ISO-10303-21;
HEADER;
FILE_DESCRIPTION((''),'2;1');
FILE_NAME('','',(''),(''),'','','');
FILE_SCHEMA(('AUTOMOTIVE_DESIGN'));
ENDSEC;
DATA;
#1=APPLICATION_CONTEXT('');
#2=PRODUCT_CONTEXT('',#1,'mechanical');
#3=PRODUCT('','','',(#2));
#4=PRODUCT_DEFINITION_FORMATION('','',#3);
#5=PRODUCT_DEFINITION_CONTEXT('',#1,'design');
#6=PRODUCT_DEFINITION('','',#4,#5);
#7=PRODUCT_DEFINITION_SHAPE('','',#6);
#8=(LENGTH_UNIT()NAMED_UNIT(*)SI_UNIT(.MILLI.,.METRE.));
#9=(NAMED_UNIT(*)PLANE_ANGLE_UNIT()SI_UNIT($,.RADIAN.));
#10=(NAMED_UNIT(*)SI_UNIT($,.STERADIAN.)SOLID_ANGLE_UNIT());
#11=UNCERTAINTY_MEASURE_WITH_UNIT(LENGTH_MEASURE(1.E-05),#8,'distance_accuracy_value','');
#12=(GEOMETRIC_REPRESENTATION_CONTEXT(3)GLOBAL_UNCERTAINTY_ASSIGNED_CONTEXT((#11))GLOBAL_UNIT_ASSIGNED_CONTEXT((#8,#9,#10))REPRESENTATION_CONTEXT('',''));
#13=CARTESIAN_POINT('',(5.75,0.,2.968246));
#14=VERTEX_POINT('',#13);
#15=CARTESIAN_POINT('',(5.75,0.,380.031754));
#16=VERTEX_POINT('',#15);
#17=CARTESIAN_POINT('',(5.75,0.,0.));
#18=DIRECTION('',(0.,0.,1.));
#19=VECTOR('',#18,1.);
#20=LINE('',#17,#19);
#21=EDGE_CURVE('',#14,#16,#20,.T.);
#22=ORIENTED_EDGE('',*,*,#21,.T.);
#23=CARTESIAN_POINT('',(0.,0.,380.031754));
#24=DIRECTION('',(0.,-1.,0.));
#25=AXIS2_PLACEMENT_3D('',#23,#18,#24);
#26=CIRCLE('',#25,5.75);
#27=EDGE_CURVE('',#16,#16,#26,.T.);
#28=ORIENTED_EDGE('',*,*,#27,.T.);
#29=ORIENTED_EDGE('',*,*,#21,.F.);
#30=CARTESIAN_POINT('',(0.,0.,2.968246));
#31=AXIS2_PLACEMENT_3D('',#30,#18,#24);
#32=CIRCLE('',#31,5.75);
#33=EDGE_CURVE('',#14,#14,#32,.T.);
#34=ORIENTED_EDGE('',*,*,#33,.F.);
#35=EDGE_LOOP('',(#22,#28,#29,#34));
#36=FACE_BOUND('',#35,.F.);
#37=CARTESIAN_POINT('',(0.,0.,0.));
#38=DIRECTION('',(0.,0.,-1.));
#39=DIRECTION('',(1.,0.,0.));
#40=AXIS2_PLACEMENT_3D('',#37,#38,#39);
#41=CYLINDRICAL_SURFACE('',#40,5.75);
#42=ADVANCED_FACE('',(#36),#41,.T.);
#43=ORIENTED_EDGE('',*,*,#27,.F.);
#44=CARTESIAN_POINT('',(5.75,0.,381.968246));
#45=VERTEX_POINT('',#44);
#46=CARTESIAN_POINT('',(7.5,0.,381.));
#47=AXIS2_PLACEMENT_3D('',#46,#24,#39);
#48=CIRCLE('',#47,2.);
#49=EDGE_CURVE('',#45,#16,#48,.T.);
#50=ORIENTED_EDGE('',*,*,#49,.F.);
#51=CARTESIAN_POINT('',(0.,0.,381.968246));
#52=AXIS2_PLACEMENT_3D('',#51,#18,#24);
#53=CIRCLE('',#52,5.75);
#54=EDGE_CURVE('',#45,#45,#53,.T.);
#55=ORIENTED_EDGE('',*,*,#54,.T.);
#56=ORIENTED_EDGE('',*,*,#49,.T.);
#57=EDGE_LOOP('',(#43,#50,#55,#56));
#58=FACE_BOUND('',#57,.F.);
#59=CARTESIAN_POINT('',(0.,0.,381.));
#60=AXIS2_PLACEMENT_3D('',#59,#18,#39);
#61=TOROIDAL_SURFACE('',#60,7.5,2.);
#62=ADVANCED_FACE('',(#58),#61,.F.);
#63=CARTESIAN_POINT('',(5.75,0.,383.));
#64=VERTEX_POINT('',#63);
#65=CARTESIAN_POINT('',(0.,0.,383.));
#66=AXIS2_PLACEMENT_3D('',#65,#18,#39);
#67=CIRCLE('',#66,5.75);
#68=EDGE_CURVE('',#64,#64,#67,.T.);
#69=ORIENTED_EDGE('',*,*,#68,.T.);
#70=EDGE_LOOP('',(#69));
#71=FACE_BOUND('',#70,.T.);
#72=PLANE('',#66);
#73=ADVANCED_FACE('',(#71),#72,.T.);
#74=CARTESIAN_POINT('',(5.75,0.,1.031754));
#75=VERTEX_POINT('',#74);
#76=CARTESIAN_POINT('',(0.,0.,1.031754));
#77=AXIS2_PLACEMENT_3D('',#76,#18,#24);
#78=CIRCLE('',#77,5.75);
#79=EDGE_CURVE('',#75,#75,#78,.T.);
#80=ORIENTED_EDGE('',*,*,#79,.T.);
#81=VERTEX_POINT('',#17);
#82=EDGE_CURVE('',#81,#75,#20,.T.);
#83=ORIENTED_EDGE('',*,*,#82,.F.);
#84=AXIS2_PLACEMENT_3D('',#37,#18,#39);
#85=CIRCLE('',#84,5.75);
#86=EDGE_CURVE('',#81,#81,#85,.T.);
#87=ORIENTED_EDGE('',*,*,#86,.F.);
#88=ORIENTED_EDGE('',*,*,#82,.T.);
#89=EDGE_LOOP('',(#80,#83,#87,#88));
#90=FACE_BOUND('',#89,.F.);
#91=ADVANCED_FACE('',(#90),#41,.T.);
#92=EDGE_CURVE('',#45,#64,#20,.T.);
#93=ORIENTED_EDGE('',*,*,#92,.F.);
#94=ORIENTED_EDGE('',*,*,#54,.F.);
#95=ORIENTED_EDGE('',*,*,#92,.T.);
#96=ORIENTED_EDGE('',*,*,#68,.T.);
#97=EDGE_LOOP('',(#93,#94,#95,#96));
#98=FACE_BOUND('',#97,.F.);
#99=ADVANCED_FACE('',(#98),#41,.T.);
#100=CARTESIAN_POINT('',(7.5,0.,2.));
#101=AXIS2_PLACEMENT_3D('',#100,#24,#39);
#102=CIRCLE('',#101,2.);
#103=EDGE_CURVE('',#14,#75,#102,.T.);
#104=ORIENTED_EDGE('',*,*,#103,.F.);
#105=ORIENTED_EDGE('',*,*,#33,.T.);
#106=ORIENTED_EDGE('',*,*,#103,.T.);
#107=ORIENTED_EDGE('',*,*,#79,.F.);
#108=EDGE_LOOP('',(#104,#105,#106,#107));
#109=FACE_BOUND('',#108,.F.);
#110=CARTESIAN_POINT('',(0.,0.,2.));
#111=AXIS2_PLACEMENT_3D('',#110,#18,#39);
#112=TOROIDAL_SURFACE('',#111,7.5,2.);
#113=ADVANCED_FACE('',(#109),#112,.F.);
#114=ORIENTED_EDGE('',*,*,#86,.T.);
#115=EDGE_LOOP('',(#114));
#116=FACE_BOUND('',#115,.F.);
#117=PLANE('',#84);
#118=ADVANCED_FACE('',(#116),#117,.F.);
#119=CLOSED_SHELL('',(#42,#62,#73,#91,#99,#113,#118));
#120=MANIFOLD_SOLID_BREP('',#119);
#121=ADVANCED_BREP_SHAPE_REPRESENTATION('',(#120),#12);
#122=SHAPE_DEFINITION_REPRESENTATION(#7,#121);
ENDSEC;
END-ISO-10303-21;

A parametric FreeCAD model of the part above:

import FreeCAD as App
import Part
import Sketcher

V = App.Vector
Q = App.Units.Quantity

doc = App.newDocument("Part")
body = doc.addObject("PartDesign::Body", "Body")

sketch1 = body.newObject("Sketcher::SketchObject", "Sketch")
sketch1.AttachmentSupport = (doc.getObject("XZ_Plane"), [""])
sketch1.MapMode = "FlatFace"
sketch1.addGeometry(Part.Circle(V(7.5, 381, 0), V(0, 0, 1), 2), False)
sketch1.addConstraint([
    Sketcher.Constraint("Diameter", 0, Q("4 mm")),
    Sketcher.Constraint("DistanceY", -1, 1, 0, 3, Q("381 mm")),
    Sketcher.Constraint("DistanceX", -1, 1, 0, 3, Q("7.5 mm")),
])
revolution = body.newObject("PartDesign::Revolution", "Revolution")
revolution.Profile = sketch1
revolution.ReferenceAxis = (sketch1, ["V_Axis"])
revolution.Angle = 360
body2 = doc.addObject("PartDesign::Body", "Body001")

sketch2 = body2.newObject("Sketcher::SketchObject", "Sketch001")
sketch2.AttachmentSupport = (doc.getObject("XZ_Plane001"), [""])
sketch2.MapMode = "FlatFace"
sketch2.addGeometry(Part.Circle(V(7.5, 2, 0), V(0, 0, 1), 2), False)
sketch2.addConstraint([
    Sketcher.Constraint("Diameter", 0, Q("4 mm")),
    Sketcher.Constraint("DistanceY", -1, 1, 0, 3, Q("2 mm")),
    Sketcher.Constraint("DistanceX", -1, 1, 0, 3, Q("7.5 mm")),
])
revolution2 = body2.newObject("PartDesign::Revolution", "Revolution001")
revolution2.Profile = sketch2
revolution2.ReferenceAxis = (sketch2, ["V_Axis"])
revolution2.Angle = 360
body3 = doc.addObject("PartDesign::Body", "Body002")

sketch3 = body3.newObject("Sketcher::SketchObject", "Sketch002")
sketch3.AttachmentSupport = (doc.getObject("XY_Plane002"), [""])
sketch3.MapMode = "FlatFace"
sketch3.addGeometry(Part.Circle(V(0, 0, 0), V(0, 0, 1), 6), False)
sketch3.addConstraint([
    Sketcher.Constraint("Coincident", 0, 3, -1, 1),
    Sketcher.Constraint("Diameter", 0, Q("11.5 mm")),
])
pad1 = body3.newObject("PartDesign::Pad", "Pad")
pad1.Profile = sketch3
pad1.Length = 383
doc.recompute()

boolean = body3.newObject("PartDesign::Boolean", "Boolean")
boolean.Type = "Cut"
boolean.addObjects([body2])
doc.recompute()

boolean2 = body3.newObject("PartDesign::Boolean", "Boolean001")
boolean2.Type = "Cut"
boolean2.addObjects([body])

doc.recompute()
